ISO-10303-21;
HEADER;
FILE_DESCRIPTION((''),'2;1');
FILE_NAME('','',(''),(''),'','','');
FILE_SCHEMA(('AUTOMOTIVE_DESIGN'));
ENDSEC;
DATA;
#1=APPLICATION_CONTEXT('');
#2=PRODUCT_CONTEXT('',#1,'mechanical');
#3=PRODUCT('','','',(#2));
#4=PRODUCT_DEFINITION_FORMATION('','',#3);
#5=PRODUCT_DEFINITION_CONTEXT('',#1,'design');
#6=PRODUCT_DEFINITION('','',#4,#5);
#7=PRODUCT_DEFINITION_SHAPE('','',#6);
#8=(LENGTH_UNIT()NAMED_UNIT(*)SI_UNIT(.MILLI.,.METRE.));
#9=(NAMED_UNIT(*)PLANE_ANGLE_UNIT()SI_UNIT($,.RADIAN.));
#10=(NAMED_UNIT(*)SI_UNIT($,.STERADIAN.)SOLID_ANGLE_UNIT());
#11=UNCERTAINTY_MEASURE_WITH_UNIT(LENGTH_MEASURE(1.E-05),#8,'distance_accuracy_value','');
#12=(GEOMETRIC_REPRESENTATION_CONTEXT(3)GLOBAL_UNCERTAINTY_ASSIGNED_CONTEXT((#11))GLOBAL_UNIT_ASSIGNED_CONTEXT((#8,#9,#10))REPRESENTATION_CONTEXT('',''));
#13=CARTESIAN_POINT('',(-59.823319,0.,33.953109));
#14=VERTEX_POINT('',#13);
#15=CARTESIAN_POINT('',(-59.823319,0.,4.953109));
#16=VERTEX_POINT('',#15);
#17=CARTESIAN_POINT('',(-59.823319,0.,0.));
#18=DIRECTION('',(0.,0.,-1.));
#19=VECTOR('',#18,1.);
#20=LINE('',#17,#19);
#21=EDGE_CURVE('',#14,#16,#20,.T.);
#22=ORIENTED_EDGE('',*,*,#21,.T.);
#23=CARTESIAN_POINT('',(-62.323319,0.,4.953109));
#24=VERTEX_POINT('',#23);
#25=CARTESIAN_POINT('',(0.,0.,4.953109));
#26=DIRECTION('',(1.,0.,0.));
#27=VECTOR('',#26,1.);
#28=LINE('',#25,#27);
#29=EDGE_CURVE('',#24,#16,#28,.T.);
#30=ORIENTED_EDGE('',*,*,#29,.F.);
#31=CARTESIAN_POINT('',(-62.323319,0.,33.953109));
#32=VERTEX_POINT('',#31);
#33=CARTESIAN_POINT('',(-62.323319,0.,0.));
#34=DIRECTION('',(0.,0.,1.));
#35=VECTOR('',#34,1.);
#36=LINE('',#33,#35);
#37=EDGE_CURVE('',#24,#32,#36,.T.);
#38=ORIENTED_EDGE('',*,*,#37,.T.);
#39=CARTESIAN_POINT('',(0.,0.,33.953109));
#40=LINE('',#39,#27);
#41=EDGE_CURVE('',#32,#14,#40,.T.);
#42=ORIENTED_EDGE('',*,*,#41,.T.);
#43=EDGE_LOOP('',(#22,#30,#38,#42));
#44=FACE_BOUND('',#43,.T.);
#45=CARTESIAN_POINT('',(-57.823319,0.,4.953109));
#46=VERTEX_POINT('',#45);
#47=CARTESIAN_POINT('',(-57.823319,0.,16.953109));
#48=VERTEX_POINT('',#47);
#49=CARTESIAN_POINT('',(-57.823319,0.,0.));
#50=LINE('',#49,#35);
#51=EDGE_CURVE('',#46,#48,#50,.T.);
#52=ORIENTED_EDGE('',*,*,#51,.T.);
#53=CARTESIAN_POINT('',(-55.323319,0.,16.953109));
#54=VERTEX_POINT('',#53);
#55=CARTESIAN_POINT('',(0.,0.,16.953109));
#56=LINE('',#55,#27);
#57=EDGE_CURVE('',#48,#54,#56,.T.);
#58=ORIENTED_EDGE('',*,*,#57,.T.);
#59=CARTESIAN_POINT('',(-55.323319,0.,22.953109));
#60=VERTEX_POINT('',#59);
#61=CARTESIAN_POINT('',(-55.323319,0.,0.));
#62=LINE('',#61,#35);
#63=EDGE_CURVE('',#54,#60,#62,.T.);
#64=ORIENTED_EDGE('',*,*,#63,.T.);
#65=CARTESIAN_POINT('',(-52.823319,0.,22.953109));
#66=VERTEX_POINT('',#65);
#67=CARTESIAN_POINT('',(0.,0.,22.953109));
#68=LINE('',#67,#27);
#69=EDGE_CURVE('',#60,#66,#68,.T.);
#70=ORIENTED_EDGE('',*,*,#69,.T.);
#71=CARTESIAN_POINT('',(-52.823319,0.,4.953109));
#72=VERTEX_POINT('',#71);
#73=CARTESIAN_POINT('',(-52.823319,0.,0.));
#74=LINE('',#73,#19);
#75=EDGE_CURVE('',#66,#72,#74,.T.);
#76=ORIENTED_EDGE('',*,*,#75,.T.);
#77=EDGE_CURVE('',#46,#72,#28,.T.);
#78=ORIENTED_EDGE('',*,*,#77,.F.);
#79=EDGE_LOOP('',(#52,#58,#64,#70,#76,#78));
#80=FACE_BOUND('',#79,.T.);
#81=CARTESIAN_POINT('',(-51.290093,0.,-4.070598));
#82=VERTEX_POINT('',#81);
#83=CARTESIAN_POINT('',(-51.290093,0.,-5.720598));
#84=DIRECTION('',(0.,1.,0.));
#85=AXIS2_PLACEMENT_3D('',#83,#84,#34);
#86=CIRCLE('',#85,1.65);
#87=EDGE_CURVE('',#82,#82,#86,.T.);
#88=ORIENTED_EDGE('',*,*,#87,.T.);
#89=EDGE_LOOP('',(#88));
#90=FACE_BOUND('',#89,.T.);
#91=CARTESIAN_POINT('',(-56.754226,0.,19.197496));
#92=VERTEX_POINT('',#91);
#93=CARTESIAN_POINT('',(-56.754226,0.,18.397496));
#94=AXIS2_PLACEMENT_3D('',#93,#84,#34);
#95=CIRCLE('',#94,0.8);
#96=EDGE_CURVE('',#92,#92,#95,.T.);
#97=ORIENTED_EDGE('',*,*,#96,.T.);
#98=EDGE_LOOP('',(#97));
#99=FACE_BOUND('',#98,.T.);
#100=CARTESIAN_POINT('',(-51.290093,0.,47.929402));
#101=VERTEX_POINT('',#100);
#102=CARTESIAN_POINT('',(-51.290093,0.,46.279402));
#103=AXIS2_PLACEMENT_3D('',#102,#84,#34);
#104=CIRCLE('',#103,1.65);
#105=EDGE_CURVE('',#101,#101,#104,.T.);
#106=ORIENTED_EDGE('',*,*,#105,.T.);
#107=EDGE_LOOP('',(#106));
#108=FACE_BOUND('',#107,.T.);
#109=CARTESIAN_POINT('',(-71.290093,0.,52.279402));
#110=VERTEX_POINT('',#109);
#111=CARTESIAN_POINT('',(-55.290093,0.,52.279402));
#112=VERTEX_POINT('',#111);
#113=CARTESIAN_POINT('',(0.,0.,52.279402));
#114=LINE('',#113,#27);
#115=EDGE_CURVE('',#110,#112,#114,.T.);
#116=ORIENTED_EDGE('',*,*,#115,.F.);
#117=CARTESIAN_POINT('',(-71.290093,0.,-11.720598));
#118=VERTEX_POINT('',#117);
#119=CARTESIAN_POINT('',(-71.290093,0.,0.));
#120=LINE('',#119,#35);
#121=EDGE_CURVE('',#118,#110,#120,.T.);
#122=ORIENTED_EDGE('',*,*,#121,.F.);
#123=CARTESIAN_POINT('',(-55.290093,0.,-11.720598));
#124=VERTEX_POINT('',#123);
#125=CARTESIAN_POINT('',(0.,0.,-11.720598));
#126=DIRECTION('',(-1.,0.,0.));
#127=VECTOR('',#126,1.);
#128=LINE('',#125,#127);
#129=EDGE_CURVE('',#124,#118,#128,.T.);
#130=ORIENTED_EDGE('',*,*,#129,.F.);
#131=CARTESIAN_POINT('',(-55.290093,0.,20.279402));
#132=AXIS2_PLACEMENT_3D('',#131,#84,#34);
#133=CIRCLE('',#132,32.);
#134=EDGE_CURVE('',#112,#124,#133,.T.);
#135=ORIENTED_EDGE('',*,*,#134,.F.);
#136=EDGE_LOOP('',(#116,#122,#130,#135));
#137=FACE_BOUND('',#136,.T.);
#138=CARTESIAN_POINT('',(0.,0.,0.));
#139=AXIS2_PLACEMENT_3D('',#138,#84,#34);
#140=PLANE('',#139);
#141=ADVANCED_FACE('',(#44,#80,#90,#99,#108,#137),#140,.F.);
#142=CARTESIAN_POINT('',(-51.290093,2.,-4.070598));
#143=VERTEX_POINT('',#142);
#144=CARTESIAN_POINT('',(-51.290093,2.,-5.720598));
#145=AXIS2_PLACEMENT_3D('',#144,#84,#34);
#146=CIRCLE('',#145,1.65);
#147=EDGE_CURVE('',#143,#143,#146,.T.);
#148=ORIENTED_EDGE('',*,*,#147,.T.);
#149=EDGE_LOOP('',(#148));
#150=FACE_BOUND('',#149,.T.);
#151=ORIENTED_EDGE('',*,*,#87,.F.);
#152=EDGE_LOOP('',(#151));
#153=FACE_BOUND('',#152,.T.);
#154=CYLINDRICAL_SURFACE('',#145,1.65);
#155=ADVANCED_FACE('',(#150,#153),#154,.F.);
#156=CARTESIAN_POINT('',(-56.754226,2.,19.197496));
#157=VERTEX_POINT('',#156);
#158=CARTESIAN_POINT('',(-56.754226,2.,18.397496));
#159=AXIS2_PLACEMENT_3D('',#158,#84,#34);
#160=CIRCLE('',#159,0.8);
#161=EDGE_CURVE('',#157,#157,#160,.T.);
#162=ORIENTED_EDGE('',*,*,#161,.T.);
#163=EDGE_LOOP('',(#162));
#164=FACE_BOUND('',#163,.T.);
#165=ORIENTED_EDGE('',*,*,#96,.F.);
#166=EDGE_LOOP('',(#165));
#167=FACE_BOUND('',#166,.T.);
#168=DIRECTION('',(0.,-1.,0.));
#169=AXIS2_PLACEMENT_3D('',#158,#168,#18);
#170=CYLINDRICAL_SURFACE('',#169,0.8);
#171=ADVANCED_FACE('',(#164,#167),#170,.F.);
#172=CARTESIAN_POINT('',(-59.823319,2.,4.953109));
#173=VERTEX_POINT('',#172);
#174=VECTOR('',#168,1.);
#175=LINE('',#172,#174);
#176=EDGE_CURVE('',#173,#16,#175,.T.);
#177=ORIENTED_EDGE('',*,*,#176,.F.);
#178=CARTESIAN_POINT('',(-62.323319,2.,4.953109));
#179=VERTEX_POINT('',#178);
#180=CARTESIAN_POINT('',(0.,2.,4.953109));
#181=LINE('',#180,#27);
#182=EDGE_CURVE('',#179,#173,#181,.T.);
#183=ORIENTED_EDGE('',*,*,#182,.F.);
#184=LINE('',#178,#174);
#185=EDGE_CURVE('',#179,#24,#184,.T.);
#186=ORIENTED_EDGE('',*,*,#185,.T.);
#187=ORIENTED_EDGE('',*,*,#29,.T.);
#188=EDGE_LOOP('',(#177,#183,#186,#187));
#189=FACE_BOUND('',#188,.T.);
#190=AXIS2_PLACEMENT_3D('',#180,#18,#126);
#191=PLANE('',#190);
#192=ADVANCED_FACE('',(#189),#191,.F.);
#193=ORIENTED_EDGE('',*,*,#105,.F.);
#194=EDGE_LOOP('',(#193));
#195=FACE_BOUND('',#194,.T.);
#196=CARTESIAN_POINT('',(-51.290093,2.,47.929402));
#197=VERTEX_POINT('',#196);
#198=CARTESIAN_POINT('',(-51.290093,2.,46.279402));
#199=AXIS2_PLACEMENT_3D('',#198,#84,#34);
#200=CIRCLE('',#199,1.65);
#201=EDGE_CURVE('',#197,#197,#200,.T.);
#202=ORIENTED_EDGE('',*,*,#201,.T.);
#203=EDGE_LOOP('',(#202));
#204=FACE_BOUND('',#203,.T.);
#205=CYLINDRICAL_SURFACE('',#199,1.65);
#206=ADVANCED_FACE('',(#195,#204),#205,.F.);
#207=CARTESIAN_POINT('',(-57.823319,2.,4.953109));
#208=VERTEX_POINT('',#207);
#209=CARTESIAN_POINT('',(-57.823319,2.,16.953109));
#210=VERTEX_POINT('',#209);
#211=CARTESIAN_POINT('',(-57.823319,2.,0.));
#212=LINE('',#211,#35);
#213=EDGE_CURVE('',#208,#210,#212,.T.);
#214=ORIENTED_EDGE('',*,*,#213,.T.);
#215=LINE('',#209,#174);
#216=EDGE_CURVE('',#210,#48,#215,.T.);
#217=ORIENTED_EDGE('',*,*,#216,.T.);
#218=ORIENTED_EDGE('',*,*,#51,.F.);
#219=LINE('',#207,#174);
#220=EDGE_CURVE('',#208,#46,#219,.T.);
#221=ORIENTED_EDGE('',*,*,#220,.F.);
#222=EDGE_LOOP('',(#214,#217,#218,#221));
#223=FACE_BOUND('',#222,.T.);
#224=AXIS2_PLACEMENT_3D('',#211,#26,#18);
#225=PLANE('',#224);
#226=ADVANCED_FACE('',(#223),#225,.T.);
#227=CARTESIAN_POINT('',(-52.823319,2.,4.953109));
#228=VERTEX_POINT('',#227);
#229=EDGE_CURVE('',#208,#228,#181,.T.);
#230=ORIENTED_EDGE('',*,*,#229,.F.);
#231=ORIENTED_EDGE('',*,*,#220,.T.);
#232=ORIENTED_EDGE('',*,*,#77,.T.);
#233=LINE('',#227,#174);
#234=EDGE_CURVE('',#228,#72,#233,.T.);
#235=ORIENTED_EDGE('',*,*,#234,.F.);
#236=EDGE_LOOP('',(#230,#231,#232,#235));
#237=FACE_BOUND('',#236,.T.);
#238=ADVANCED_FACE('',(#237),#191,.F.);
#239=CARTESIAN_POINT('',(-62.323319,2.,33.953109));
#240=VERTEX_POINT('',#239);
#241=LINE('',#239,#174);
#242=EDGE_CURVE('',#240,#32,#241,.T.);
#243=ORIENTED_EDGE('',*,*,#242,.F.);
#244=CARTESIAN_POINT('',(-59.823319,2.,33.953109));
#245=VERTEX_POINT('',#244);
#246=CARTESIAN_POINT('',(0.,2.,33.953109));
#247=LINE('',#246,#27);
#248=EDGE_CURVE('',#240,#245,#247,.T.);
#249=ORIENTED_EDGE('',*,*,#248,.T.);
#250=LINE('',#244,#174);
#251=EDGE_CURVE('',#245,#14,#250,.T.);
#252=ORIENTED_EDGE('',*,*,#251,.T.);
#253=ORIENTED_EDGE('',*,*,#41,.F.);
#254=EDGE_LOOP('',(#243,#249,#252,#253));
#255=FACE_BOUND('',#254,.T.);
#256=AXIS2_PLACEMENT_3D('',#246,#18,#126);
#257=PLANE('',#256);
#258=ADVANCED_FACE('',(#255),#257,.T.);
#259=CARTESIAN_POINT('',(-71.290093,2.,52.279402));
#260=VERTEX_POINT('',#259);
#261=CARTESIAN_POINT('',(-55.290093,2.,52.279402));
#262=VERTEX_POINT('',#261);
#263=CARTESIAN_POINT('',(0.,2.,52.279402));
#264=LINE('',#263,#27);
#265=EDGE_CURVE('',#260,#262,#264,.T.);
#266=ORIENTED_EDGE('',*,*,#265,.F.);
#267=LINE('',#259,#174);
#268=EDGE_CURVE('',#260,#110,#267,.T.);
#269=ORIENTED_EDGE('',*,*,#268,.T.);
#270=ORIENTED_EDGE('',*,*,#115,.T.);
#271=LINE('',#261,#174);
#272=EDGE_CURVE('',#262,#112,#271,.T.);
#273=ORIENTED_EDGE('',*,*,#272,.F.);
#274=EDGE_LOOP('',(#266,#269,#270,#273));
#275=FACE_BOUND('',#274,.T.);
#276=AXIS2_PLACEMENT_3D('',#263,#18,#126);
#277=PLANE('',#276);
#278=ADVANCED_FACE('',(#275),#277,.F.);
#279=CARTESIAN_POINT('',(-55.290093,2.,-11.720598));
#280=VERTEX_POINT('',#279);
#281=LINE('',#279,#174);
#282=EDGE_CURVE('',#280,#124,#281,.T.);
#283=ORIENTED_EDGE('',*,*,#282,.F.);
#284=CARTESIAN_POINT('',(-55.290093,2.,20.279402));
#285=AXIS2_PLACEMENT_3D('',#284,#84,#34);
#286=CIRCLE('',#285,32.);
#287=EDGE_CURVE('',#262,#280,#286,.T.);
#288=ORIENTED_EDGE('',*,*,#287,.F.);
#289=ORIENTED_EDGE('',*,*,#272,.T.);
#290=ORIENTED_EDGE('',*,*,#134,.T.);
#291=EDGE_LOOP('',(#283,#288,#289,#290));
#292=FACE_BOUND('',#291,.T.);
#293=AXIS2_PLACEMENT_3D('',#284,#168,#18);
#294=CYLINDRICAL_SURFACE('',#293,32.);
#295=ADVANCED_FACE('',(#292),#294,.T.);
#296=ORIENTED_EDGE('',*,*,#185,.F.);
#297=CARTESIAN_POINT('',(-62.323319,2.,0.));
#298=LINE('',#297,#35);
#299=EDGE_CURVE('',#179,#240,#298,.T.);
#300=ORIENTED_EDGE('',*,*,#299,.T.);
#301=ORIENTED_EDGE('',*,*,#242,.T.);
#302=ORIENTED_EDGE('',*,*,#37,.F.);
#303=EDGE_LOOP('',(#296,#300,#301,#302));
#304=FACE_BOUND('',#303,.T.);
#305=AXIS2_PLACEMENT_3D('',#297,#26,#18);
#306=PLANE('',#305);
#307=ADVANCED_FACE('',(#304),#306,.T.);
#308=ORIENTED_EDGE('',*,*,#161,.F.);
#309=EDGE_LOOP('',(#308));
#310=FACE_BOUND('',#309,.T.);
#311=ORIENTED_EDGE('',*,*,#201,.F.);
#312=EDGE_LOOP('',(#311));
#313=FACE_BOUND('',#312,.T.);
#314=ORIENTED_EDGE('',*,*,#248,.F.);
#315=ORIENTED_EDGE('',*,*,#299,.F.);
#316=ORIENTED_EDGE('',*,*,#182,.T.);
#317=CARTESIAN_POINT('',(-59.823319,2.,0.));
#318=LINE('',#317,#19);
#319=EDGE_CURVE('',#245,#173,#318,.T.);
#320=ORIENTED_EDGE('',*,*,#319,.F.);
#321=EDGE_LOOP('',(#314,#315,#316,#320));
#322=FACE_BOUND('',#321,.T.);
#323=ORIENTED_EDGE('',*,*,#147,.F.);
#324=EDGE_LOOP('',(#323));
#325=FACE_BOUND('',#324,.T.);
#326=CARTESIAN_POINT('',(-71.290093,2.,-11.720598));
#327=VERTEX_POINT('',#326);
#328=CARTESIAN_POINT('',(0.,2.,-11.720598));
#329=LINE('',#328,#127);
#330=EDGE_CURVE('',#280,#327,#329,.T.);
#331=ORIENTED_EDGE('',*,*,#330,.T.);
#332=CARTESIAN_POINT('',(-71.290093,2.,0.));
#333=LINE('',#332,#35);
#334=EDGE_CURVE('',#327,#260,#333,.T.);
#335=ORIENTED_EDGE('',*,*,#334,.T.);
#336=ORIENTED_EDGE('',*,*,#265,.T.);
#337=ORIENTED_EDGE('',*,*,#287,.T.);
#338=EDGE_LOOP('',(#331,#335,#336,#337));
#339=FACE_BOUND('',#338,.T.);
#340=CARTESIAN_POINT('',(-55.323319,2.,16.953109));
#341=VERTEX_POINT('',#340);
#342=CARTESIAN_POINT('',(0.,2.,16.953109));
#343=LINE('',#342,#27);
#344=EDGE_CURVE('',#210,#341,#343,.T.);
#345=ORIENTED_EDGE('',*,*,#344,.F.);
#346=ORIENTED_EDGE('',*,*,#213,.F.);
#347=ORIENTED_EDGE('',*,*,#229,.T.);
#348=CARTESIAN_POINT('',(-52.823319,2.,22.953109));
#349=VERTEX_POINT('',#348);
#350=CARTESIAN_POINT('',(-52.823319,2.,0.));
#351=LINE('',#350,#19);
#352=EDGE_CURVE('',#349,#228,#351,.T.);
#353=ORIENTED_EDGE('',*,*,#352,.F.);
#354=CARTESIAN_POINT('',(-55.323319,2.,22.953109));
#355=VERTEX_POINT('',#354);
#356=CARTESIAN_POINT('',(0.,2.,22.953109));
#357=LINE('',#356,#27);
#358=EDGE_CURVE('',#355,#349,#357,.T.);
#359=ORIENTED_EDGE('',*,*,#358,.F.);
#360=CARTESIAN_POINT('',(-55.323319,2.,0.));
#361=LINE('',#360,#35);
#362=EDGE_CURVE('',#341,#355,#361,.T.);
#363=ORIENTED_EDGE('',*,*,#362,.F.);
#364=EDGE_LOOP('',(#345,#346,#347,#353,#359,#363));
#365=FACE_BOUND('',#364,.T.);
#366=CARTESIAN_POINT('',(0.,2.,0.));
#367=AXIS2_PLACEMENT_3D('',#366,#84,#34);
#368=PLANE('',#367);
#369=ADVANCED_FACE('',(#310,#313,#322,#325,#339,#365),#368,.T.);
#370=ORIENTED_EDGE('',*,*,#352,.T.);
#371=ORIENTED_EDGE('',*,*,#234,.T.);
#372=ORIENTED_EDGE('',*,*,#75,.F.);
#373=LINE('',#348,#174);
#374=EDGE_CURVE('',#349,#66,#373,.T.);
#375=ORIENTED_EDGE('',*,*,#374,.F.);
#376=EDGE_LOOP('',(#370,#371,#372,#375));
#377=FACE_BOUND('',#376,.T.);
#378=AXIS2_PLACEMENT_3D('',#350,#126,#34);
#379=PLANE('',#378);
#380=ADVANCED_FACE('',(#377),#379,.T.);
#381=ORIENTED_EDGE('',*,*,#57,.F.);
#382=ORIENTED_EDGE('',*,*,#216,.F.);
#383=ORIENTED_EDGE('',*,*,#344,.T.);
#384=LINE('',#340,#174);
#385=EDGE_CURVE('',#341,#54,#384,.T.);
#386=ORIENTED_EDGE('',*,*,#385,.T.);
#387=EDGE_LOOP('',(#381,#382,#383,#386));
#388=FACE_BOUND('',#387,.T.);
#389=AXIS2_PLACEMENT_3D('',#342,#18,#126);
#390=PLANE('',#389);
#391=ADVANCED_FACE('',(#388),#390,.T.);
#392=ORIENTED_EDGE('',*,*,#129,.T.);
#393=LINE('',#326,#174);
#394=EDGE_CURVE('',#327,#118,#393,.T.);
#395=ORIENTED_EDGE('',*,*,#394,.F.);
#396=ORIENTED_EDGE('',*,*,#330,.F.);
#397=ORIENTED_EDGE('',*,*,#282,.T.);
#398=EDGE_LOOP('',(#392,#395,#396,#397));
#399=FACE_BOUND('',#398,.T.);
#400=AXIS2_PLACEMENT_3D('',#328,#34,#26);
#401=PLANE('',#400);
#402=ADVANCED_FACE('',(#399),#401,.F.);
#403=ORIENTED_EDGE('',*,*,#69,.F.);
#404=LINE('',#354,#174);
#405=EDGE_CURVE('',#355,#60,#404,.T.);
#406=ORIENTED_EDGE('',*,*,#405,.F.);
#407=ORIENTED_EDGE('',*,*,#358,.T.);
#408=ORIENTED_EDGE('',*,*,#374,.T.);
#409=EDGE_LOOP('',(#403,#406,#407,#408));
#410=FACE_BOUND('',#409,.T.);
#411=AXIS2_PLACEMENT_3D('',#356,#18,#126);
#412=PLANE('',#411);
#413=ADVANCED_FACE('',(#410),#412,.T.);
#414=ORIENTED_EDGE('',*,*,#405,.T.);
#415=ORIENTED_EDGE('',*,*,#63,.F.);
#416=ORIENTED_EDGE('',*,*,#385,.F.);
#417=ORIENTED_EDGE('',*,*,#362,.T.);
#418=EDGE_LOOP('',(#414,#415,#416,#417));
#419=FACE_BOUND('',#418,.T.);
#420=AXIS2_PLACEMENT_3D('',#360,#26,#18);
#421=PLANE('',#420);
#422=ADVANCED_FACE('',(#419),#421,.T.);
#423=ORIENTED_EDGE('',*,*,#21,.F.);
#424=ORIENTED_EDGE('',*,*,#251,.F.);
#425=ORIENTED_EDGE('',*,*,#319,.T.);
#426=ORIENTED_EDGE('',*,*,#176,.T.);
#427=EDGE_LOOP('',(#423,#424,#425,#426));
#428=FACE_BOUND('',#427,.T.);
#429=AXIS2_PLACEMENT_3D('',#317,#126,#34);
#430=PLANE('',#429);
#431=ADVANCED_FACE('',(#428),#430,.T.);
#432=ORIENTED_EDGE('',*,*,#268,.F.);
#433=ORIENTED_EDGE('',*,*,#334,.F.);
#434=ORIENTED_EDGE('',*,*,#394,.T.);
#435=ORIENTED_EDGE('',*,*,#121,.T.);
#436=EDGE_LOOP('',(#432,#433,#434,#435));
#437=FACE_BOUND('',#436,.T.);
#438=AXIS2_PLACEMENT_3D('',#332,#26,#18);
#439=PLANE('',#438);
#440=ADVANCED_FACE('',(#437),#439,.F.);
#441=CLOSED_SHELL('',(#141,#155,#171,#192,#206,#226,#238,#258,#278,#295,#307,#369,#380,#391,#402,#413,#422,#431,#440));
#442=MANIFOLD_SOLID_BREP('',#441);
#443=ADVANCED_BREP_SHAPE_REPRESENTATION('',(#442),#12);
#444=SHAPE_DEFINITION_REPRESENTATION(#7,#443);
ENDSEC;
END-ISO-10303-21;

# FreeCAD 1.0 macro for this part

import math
import FreeCAD as App
import Part
import Sketcher


def add_polygon(sketch, points):
    """Adds a closed chain of lines whose ends are joined by coincident constraints."""
    first, n = sketch.GeometryCount, len(points)
    for a, b in zip(points, points[1:] + points[:1]):
        sketch.addGeometry(Part.LineSegment(App.Vector(*a, 0), App.Vector(*b, 0)), False)
    for i in range(n):
        sketch.addConstraint(Sketcher.Constraint("Coincident", first + i, 2, first + (i + 1) % n, 1))

doc = App.newDocument("Part")
params = doc.addObject("Spreadsheet::Sheet", "Params")
for row, (alias, value) in enumerate([
    ("sketch1_radius", "32 mm"),
    ("sketch1_diameter", "1.6 mm"),
    ("sketch1_width", "16 mm"),
    ("sketch1_width2", "5 mm"),
    ("sketch1_height", "29 mm"),
    ("pad1_length", "2 mm"),
    ("sketch2_diameter", "3.3 mm"),
    ("hole_diameter", "3.3 mm"),
    ("hole_depth", "11.5 mm"),
], start=1):
    params.set(f"A{row}", alias)
    params.set(f"B{row}", "=" + value)
    params.setAlias(f"B{row}", alias)

body = doc.addObject("PartDesign::Body", "Body")

sketch1 = doc.addObject("Sketcher::SketchObject", "Sketch")
body.addObject(sketch1)
sketch1.AttachmentSupport = (doc.XZ_Plane, [""])
sketch1.MapMode = "FlatFace"
sketch1.addGeometry(Part.LineSegment(App.Vector(-71.3, -11.7, 0), App.Vector(-71.3, 52.3, 0)), False)
sketch1.addGeometry(Part.LineSegment(App.Vector(-71.3, 52.3, 0), App.Vector(-55.3, 52.3, 0)), False)
sketch1.addGeometry(Part.ArcOfCircle(Part.Circle(App.Vector(-55.3, 20.3, 0), App.Vector(0, 0, 1), 32), math.radians(-90), math.radians(90)), False)
sketch1.addGeometry(Part.LineSegment(App.Vector(-55.3, -11.7, 0), App.Vector(-71.3, -11.7, 0)), False)
add_polygon(sketch1, [(-59.8, 34), (-62.3, 34), (-62.3, 5), (-59.8, 5)])
sketch1.addGeometry(Part.Circle(App.Vector(-56.8, 18.4, 0), App.Vector(0, 0, 1), 0.8), False)
add_polygon(sketch1, [(-55.3, 17), (-57.8, 17), (-57.8, 5), (-52.8, 5), (-52.8, 23), (-55.3, 23)])
sketch1.addConstraint([
    Sketcher.Constraint("Coincident", 0, 2, 1, 1),
    Sketcher.Constraint("Tangent", 1, 2, 2, 2),
    Sketcher.Constraint("Tangent", 2, 1, 3, 1),
    Sketcher.Constraint("Coincident", 3, 2, 0, 1),
    Sketcher.Constraint("Vertical", 0),
    Sketcher.Constraint("Horizontal", 1),
    Sketcher.Constraint("Horizontal", 3),
    Sketcher.Constraint("Horizontal", 4),
    Sketcher.Constraint("Vertical", 5),
    Sketcher.Constraint("Horizontal", 6),
    Sketcher.Constraint("Vertical", 7),
    Sketcher.Constraint("Horizontal", 9),
    Sketcher.Constraint("Vertical", 10),
    Sketcher.Constraint("Horizontal", 11),
    Sketcher.Constraint("Vertical", 12),
    Sketcher.Constraint("Horizontal", 13),
    Sketcher.Constraint("Vertical", 14),
    Sketcher.Constraint("Horizontal", 6, 2, 10, 2),
    Sketcher.Constraint("Equal", 6, 9),
    Sketcher.Constraint("Equal", 9, 13),
    Sketcher.Constraint("Radius", 2, 32.0),
    Sketcher.Constraint("Diameter", 8, 1.6),
    Sketcher.Constraint("DistanceX", 1, 1, 1, 2, 16.0),
    Sketcher.Constraint("DistanceX", 11, 1, 11, 2, 5.0),
    Sketcher.Constraint("DistanceY", 5, 2, 5, 1, 29.0),
    Sketcher.Constraint("DistanceY", 10, 2, 10, 1, 12.0),
    Sketcher.Constraint("DistanceY", 12, 1, 12, 2, 18.0),
    Sketcher.Constraint("DistanceX", 6, 2, 9, 2, 2.0),
    Sketcher.Constraint("DistanceY", -1, 1, 2, 3, 20.279402),
    Sketcher.Constraint("DistanceX", 4, 2, -1, 1, 62.323319),
    Sketcher.Constraint("DistanceY", -1, 1, 4, 2, 33.953109),
    Sketcher.Constraint("DistanceX", 2, 3, -1, 1, 55.290093),
    Sketcher.Constraint("DistanceX", 8, 3, -1, 1, 56.754226),
    Sketcher.Constraint("DistanceY", -1, 1, 8, 3, 18.397496),
])
sketch1.setExpression("Constraints[30]", "Params.sketch1_radius")
sketch1.setExpression("Constraints[31]", "Params.sketch1_diameter")
sketch1.setExpression("Constraints[32]", "Params.sketch1_width")
sketch1.setExpression("Constraints[33]", "Params.sketch1_width2")
sketch1.setExpression("Constraints[34]", "Params.sketch1_height")
pad1 = doc.addObject("PartDesign::Pad", "Pad")
body.addObject(pad1)
pad1.Profile = sketch1
pad1.setExpression("Length", "Params.pad1_length")
pad1.Reversed = True

sketch2 = doc.addObject("Sketcher::SketchObject", "Sketch001")
body.addObject(sketch2)
sketch2.AttachmentSupport = (doc.XZ_Plane, [""])
sketch2.MapMode = "FlatFace"
sketch2.AttachmentOffset = App.Placement(App.Vector(0, 0, -2), App.Rotation())
sketch2.addGeometry([
    Part.Circle(App.Vector(-51.3, -5.7, 0), App.Vector(0, 0, 1), 1.6),
    Part.Circle(App.Vector(-51.3, 46.3, 0), App.Vector(0, 0, 1), 1.6),
], False)
sketch2.addConstraint([
    Sketcher.Constraint("Equal", 0, 1),
    Sketcher.Constraint("Vertical", 0, 3, 1, 3),
    Sketcher.Constraint("Diameter", 0, 3.3),
    Sketcher.Constraint("DistanceY", 0, 3, 1, 3, 52.0),
    Sketcher.Constraint("DistanceY", 0, 3, -1, 1, 5.720598),
    Sketcher.Constraint("DistanceX", 0, 3, -1, 1, 51.290093),
])
sketch2.setExpression("Constraints[2]", "Params.sketch2_diameter")
doc.recompute()
hole = doc.addObject("PartDesign::Hole", "Hole")
body.addObject(hole)
hole.Profile = sketch2
hole.ThreadType = "None"
hole.setExpression("Diameter", "Params.hole_diameter")
hole.DepthType = "Dimension"
hole.setExpression("Depth", "Params.hole_depth")
hole.DrillPoint = "Angled"
hole.DrillPointAngle = 118
hole.Reversed = True

doc.recompute()
